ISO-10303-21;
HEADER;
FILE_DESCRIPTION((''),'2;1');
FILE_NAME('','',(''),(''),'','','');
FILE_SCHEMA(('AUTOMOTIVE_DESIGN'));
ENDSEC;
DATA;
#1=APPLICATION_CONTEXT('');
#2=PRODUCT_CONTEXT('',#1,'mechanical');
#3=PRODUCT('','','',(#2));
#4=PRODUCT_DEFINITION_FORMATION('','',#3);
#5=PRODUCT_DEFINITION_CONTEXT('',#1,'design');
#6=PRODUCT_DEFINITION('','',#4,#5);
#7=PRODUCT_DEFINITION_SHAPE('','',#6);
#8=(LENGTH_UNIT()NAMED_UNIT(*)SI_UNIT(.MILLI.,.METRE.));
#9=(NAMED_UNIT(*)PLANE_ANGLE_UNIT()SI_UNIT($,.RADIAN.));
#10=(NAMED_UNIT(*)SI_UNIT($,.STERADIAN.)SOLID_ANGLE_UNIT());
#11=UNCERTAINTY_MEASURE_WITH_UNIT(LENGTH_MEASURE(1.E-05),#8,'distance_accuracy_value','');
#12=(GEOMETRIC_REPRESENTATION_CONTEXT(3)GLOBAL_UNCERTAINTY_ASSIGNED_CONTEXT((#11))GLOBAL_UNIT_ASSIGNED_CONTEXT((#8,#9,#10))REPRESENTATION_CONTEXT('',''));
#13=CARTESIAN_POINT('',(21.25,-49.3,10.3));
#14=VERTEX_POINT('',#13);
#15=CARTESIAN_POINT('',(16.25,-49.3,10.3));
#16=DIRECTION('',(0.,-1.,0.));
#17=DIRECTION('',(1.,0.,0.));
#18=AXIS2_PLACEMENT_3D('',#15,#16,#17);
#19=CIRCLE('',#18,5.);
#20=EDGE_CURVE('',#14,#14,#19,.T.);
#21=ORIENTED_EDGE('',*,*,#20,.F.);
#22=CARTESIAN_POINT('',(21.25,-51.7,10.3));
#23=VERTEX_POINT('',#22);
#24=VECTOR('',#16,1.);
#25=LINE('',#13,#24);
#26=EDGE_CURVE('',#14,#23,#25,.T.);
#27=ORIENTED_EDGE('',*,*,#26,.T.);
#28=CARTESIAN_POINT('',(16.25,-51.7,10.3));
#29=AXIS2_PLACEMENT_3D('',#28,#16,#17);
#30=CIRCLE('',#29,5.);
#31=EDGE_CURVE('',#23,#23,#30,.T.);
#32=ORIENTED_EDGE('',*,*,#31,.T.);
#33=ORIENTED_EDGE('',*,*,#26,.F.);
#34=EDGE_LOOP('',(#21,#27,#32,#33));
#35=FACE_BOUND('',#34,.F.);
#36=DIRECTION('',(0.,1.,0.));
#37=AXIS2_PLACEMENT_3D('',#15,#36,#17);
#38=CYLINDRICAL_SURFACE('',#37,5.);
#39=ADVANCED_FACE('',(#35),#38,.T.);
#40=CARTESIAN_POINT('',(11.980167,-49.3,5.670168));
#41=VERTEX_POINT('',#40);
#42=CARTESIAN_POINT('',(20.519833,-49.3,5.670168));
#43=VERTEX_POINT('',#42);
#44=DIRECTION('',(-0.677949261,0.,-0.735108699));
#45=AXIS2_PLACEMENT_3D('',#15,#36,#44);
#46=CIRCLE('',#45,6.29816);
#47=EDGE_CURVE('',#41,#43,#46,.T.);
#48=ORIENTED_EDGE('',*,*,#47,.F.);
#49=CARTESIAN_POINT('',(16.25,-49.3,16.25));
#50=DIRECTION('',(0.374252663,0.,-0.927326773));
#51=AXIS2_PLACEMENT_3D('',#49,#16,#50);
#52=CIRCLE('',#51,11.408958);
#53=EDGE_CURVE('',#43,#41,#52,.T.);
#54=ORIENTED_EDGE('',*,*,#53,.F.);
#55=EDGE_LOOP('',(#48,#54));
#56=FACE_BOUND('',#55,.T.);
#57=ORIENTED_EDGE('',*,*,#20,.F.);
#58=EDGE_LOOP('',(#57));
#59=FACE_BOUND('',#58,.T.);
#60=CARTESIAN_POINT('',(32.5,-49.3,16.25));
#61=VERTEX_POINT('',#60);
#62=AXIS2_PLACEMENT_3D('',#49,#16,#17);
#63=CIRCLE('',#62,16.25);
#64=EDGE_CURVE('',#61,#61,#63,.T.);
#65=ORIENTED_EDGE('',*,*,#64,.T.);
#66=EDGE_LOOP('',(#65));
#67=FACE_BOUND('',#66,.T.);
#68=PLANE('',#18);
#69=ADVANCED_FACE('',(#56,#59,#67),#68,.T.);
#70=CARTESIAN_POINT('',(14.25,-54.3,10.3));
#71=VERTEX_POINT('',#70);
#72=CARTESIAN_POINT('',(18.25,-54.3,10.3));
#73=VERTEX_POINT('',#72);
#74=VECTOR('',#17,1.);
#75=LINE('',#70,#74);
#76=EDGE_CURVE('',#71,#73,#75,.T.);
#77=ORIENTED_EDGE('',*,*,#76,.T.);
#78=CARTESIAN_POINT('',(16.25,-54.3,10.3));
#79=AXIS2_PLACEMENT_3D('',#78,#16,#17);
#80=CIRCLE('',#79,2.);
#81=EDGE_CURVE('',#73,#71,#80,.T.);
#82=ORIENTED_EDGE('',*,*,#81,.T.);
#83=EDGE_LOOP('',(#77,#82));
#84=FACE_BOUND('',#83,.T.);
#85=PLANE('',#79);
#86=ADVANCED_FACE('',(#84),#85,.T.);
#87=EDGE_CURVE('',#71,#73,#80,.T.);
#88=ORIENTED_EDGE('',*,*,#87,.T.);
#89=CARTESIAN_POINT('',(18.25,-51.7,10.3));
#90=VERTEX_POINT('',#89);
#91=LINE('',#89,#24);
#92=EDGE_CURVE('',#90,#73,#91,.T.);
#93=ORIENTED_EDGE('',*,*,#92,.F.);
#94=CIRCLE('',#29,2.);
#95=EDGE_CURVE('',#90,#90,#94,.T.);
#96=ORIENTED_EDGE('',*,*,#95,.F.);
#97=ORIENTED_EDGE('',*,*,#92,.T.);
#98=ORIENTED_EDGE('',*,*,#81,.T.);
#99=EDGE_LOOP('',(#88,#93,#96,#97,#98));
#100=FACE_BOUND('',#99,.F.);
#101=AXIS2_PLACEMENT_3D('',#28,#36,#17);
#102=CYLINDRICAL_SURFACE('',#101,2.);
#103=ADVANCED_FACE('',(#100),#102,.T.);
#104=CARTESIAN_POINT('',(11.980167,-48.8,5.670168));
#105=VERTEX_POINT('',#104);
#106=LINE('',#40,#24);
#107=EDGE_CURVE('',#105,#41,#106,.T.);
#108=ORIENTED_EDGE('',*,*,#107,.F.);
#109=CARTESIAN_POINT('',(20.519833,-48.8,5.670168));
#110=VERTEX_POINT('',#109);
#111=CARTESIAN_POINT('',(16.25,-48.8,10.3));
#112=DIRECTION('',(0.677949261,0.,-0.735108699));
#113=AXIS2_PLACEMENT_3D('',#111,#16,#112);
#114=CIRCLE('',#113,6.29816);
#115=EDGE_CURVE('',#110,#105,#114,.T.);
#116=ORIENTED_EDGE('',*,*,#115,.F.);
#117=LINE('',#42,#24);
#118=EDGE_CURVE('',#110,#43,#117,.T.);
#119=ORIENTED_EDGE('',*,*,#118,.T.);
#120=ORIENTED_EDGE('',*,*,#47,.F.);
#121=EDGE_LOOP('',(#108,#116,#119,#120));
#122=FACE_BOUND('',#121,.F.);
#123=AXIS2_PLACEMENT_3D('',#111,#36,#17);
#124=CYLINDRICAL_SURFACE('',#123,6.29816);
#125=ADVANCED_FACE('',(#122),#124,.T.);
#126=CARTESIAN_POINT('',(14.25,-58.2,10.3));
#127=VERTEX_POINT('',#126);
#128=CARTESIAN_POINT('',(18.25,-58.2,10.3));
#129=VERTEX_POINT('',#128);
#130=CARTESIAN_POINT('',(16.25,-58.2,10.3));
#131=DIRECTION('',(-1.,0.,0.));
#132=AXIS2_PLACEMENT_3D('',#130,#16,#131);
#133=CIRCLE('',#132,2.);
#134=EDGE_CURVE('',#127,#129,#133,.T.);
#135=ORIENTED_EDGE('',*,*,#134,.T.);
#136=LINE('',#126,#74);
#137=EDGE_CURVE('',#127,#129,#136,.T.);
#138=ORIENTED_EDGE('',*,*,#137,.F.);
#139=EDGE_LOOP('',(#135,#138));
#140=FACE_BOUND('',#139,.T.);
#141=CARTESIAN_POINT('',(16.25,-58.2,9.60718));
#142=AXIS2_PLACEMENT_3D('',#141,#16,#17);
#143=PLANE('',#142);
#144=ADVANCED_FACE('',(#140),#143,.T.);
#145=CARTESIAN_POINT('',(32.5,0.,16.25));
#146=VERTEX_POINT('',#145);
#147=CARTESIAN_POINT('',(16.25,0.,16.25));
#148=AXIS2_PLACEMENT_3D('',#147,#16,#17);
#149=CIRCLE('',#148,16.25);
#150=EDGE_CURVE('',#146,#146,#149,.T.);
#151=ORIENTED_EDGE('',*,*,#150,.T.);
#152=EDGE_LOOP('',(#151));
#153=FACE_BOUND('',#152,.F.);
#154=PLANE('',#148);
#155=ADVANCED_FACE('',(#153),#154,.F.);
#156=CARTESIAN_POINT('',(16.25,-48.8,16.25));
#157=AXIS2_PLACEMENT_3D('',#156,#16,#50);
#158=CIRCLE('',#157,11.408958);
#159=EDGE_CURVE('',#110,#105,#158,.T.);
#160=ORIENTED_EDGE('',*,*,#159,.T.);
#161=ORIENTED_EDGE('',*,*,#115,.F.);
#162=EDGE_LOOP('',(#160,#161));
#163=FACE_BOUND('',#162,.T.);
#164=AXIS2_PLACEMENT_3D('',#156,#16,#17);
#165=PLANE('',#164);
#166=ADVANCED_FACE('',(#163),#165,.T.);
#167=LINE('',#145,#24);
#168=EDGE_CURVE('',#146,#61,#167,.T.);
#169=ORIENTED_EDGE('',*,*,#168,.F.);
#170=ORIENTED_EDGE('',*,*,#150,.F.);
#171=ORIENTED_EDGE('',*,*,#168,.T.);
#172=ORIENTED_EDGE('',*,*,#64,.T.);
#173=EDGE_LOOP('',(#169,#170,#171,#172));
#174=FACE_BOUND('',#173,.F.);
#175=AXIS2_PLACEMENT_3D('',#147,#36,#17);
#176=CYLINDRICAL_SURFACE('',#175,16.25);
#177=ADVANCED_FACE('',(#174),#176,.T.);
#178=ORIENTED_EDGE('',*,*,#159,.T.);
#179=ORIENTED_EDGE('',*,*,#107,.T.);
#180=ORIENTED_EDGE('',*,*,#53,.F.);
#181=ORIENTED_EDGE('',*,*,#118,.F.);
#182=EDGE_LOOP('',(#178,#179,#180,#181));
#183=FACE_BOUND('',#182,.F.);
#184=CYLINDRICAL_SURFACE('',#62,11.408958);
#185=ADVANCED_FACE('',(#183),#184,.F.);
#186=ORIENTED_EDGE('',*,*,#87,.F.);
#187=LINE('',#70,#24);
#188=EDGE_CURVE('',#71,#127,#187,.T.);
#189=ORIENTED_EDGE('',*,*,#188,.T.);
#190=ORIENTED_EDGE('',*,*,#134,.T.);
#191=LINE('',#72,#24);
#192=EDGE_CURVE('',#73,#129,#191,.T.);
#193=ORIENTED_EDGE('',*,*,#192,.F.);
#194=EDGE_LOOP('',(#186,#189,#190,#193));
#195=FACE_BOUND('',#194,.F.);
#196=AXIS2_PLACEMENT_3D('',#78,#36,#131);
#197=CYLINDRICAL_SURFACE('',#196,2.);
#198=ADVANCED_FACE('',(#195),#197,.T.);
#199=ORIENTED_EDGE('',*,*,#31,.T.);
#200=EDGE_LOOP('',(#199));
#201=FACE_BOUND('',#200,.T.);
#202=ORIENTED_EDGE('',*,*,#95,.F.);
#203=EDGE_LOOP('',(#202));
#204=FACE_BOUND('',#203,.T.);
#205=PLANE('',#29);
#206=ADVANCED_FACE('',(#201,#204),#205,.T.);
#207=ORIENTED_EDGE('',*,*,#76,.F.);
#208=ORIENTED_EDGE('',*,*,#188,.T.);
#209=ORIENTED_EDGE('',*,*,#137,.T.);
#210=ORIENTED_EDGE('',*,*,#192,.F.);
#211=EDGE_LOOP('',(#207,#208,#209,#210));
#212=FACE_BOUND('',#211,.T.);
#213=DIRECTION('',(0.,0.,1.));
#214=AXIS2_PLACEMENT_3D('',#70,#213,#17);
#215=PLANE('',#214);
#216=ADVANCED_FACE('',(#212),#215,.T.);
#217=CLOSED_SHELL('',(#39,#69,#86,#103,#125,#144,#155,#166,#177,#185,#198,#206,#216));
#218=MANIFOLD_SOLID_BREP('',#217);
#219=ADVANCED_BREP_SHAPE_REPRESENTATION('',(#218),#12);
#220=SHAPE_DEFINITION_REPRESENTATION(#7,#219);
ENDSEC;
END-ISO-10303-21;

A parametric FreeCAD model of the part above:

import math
import FreeCAD as App
import Part
import Sketcher

V = App.Vector
Q = App.Units.Quantity

doc = App.newDocument("Part")
body = doc.addObject("PartDesign::Body", "Body")

# Sketch on XZ plane
sketch1 = body.newObject("Sketcher::SketchObject", "Sketch")
sketch1.AttachmentSupport = (doc.getObject("XZ_Plane"), [""])
sketch1.MapMode = "FlatFace"
sketch1.addGeometry(Part.Circle(V(16, 16, 0), V(0, 0, 1), 16), False)
sketch1.addConstraint(Sketcher.Constraint("Diameter", 0, Q("32.5 mm")))
sketch1.addConstraint(Sketcher.Constraint("DistanceX", -1, 1, 0, 3, Q("16.25 mm")))
sketch1.addConstraint(Sketcher.Constraint("DistanceY", -1, 1, 0, 3, Q("16.25 mm")))
pad1 = body.newObject("PartDesign::Pad", "Pad")
pad1.Profile = sketch1
pad1.Length = 49.3

# Sketch on XZ plane
sketch2 = body.newObject("Sketcher::SketchObject", "Sketch001")
sketch2.AttachmentSupport = (doc.getObject("XZ_Plane"), [""])
sketch2.MapMode = "FlatFace"
sketch2.AttachmentOffset = App.Placement(V(0, 0, 49.3), App.Rotation())
sketch2.addGeometry(Part.Circle(V(16, 16, 0), V(0, 0, 1), 11), False)
sketch2.addConstraint(Sketcher.Constraint("DistanceX", -1, 1, 0, 3, Q("16.25 mm")))
sketch2.addConstraint(Sketcher.Constraint("DistanceY", -1, 1, 0, 3, Q("16.25 mm")))
sketch2.addConstraint(Sketcher.Constraint("Diameter", 0, Q("22.817916 mm")))
pocket1 = body.newObject("PartDesign::Pocket", "Pocket")
pocket1.Profile = sketch2
pocket1.Length = 0.5

# Sketch on XZ plane
sketch3 = body.newObject("Sketcher::SketchObject", "Sketch002")
sketch3.AttachmentSupport = (doc.getObject("XZ_Plane"), [""])
sketch3.MapMode = "FlatFace"
sketch3.AttachmentOffset = App.Placement(V(0, 0, 48.8), App.Rotation())
sketch3.addGeometry(Part.Circle(V(16, 10, 0), V(0, 0, 1), 6), False)
sketch3.addConstraint(Sketcher.Constraint("DistanceY", -1, 1, 0, 3, Q("10.3 mm")))
sketch3.addConstraint(Sketcher.Constraint("Diameter", 0, Q("12.59632 mm")))
sketch3.addConstraint(Sketcher.Constraint("DistanceX", -1, 1, 0, 3, Q("16.25 mm")))
pad2 = body.newObject("PartDesign::Pad", "Pad001")
pad2.Profile = sketch3
pad2.Length = 0.5

# Sketch on XZ plane
sketch4 = body.newObject("Sketcher::SketchObject", "Sketch003")
sketch4.AttachmentSupport = (doc.getObject("XZ_Plane"), [""])
sketch4.MapMode = "FlatFace"
sketch4.AttachmentOffset = App.Placement(V(0, 0, 49.3), App.Rotation())
sketch4.addGeometry(Part.Circle(V(16, 10, 0), V(0, 0, 1), 5), False)
sketch4.addConstraint(Sketcher.Constraint("Diameter", 0, Q("10 mm")))
sketch4.addConstraint(Sketcher.Constraint("DistanceY", -1, 1, 0, 3, Q("10.3 mm")))
sketch4.addConstraint(Sketcher.Constraint("DistanceX", -1, 1, 0, 3, Q("16.25 mm")))
pad3 = body.newObject("PartDesign::Pad", "Pad002")
pad3.Profile = sketch4
pad3.Length = 2.4

# Sketch on XZ plane
sketch5 = body.newObject("Sketcher::SketchObject", "Sketch004")
sketch5.AttachmentSupport = (doc.getObject("XZ_Plane"), [""])
sketch5.MapMode = "FlatFace"
sketch5.AttachmentOffset = App.Placement(V(0, 0, 51.7), App.Rotation())
sketch5.addGeometry(Part.Circle(V(16.2, 10.3, 0), V(0, 0, 1), 2), False)
sketch5.addConstraint(Sketcher.Constraint("Diameter", 0, Q("4 mm")))
sketch5.addConstraint(Sketcher.Constraint("DistanceY", -1, 1, 0, 3, Q("10.3 mm")))
sketch5.addConstraint(Sketcher.Constraint("DistanceX", -1, 1, 0, 3, Q("16.25 mm")))
pad4 = body.newObject("PartDesign::Pad", "Pad003")
pad4.Profile = sketch5
pad4.Length = 2.6

# Sketch on XZ plane
sketch6 = body.newObject("Sketcher::SketchObject", "Sketch005")
sketch6.AttachmentSupport = (doc.getObject("XZ_Plane"), [""])
sketch6.MapMode = "FlatFace"
sketch6.AttachmentOffset = App.Placement(V(0, 0, 54.3), App.Rotation())
sketch6.addGeometry(Part.ArcOfCircle(Part.Circle(V(16.2, 10.3, 0), V(0, 0, 1), 2), math.radians(180), math.radians(360)), False)
sketch6.addGeometry(Part.LineSegment(V(18.2, 10.3, 0), V(14.2, 10.3, 0)), False)
sketch6.addConstraint(Sketcher.Constraint("Coincident", 0, 1, 1, 2))
sketch6.addConstraint(Sketcher.Constraint("Coincident", 1, 1, 0, 2))
sketch6.addConstraint(Sketcher.Constraint("Horizontal", 1))
sketch6.addConstraint(Sketcher.Constraint("Radius", 0, Q("2 mm")))
sketch6.addConstraint(Sketcher.Constraint("DistanceY", -1, 1, 0, 3, Q("10.3 mm")))
sketch6.addConstraint(Sketcher.Constraint("DistanceY", -1, 1, 0, 1, Q("10.3 mm")))
sketch6.addConstraint(Sketcher.Constraint("DistanceX", -1, 1, 0, 3, Q("16.25 mm")))
pad5 = body.newObject("PartDesign::Pad", "Pad004")
pad5.Profile = sketch6
pad5.Length = 3.9

doc.recompute()
